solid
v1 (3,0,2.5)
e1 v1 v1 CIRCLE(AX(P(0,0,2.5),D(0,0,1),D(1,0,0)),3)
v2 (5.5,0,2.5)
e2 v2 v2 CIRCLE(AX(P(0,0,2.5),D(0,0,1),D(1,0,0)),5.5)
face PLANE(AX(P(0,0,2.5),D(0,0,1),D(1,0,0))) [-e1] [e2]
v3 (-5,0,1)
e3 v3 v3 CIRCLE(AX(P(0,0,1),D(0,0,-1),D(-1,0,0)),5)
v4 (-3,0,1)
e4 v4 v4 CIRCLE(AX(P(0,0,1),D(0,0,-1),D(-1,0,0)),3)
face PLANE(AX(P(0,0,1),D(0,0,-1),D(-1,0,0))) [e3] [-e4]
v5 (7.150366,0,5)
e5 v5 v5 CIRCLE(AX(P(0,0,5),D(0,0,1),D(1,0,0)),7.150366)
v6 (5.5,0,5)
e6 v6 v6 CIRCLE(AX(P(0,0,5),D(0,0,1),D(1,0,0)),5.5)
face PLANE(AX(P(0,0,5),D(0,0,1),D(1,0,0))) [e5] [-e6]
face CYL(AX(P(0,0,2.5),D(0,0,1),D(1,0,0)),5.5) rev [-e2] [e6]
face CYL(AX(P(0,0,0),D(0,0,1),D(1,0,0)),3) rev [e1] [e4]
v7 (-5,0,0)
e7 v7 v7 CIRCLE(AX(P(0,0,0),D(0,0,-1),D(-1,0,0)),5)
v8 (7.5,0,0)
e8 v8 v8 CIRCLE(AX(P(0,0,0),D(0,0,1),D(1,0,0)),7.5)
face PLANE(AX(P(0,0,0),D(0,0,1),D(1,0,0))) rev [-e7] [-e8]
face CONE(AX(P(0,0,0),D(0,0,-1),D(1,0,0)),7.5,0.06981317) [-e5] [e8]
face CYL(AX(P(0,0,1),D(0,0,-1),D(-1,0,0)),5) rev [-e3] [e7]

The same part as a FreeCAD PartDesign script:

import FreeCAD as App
import Part
import Sketcher
Q = App.Units.Quantity

doc = App.newDocument("Part")
body = doc.addObject("PartDesign::Body", "Body")

sketch1 = body.newObject("Sketcher::SketchObject", "Sketch")
sketch1.AttachmentSupport = (doc.getObject("XY_Plane"), [""])
sketch1.MapMode = "FlatFace"
sketch1.addGeometry(Part.Circle(App.Vector(0, 0, 0), App.Vector(0, 0, 1), 8), False)
sketch1.addConstraint([
    Sketcher.Constraint("Coincident", 0, 3, -1, 1),
    Sketcher.Constraint("Diameter", 0, Q("15 mm")),
])
pad1 = body.newObject("PartDesign::Pad", "Pad")
pad1.Profile = sketch1
pad1.Length = 5
pad1.TaperAngle = -4

sketch2 = body.newObject("Sketcher::SketchObject", "Sketch001")
sketch2.AttachmentSupport = (doc.getObject("XY_Plane"), [""])
sketch2.MapMode = "FlatFace"
sketch2.addGeometry(Part.Circle(App.Vector(0, 0, 0), App.Vector(0, 0, 1), 5), False)
sketch2.addConstraint([
    Sketcher.Constraint("Coincident", 0, 3, -1, 1),
    Sketcher.Constraint("Diameter", 0, Q("10 mm")),
])
pocket1 = body.newObject("PartDesign::Pocket", "Pocket")
pocket1.Profile = sketch2
pocket1.Length = 1
pocket1.Reversed = True

sketch3 = body.newObject("Sketcher::SketchObject", "Sketch002")
sketch3.AttachmentSupport = (doc.getObject("XY_Plane"), [""])
sketch3.MapMode = "FlatFace"
sketch3.AttachmentOffset = App.Placement(App.Vector(0, 0, 5), App.Rotation())
sketch3.addGeometry(Part.Circle(App.Vector(0, 0, 0), App.Vector(0, 0, 1), 6), False)
sketch3.addConstraint([
    Sketcher.Constraint("Coincident", 0, 3, -1, 1),
    Sketcher.Constraint("Diameter", 0, Q("11 mm")),
])
pocket2 = body.newObject("PartDesign::Pocket", "Pocket001")
pocket2.Profile = sketch3
pocket2.Length = 2.5

sketch4 = body.newObject("Sketcher::SketchObject", "Sketch003")
sketch4.AttachmentSupport = (doc.getObject("XY_Plane"), [""])
sketch4.MapMode = "FlatFace"
sketch4.AttachmentOffset = App.Placement(App.Vector(0, 0, 2.5), App.Rotation())
sketch4.addGeometry(Part.Circle(App.Vector(0, 0, 0), App.Vector(0, 0, 1), 3), False)
sketch4.addConstraint([
    Sketcher.Constraint("Coincident", 0, 3, -1, 1),
    Sketcher.Constraint("Diameter", 0, Q("6 mm")),
])
pocket3 = body.newObject("PartDesign::Pocket", "Pocket002")
pocket3.Profile = sketch4
pocket3.Type = "ThroughAll"
pocket3.Midplane = True

doc.recompute()
